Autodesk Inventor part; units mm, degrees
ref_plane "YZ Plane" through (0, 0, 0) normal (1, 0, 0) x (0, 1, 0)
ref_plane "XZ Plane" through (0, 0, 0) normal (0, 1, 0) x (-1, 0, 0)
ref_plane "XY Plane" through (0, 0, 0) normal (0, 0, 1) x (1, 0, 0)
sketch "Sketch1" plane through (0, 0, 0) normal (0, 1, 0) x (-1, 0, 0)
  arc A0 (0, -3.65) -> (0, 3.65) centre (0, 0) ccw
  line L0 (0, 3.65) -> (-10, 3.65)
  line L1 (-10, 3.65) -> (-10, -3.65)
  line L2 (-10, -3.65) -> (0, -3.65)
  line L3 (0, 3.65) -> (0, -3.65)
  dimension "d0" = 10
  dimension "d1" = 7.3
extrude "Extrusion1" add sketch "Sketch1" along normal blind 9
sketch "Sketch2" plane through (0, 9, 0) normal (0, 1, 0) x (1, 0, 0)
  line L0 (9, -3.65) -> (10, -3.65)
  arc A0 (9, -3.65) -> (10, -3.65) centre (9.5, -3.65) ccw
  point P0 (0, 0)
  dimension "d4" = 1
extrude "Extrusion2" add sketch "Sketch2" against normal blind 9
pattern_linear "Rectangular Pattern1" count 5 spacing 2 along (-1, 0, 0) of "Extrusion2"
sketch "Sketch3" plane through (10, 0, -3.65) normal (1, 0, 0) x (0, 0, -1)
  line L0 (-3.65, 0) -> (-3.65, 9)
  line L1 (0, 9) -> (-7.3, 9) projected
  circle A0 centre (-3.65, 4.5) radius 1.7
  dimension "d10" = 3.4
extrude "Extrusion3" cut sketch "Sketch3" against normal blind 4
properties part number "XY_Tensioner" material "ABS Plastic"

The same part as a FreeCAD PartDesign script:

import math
import FreeCAD as App
import Part
import Sketcher

doc = App.newDocument("Part")
body = doc.addObject("PartDesign::Body", "Body")

# Sketch on XZ plane
sketch1 = body.newObject("Sketcher::SketchObject", "Sketch")
sketch1.AttachmentSupport = (doc.getObject("XZ_Plane"), [""])
sketch1.MapMode = "FlatFace"
sketch1.addGeometry([
    Part.ArcOfCircle(Part.Circle(App.Vector(0, 0, 0), App.Vector(0, 0, 1), 3.6), math.radians(90), math.radians(270)),
    Part.LineSegment(App.Vector(0, 3.6, 0), App.Vector(10, 3.6, 0)),
    Part.LineSegment(App.Vector(10, 3.6, 0), App.Vector(10, -3.6, 0)),
    Part.LineSegment(App.Vector(10, -3.6, 0), App.Vector(0, -3.6, 0)),
], False)
sketch1.addConstraint([
    Sketcher.Constraint("Tangent", 0, 1, 1, 1),
    Sketcher.Constraint("Coincident", 1, 2, 2, 1),
    Sketcher.Constraint("Coincident", 2, 2, 3, 1),
    Sketcher.Constraint("Tangent", 3, 2, 0, 2),
    Sketcher.Constraint("Horizontal", 1),
    Sketcher.Constraint("Vertical", 2),
    Sketcher.Constraint("Horizontal", 3),
    Sketcher.Constraint("Coincident", 0, 3, -1, 1),
    Sketcher.Constraint("DistanceX", 1, 1, 1, 2, 10.0),
    Sketcher.Constraint("Radius", 0, 3.65),
])
pad1 = body.newObject("PartDesign::Pad", "Pad")
pad1.Profile = sketch1
pad1.Length = 9
pad1.Reversed = True

# Sketch on XZ plane
sketch2 = body.newObject("Sketcher::SketchObject", "Sketch001")
sketch2.AttachmentSupport = (doc.getObject("XZ_Plane"), [""])
sketch2.MapMode = "FlatFace"
sketch2.AttachmentOffset = App.Placement(App.Vector(0, 0, -9), App.Rotation())
sketch2.addGeometry([
    Part.LineSegment(App.Vector(10, 3.6, 0), App.Vector(9, 3.6, 0)),
    Part.ArcOfCircle(Part.Circle(App.Vector(9.5, 3.6, 0), App.Vector(0, 0, 1), 0.5), math.radians(0), math.radians(180)),
], False)
sketch2.addConstraint([
    Sketcher.Constraint("Coincident", 0, 1, 1, 1),
    Sketcher.Constraint("Coincident", 1, 2, 0, 2),
    Sketcher.Constraint("Horizontal", 0),
    Sketcher.Constraint("Horizontal", 1, 3, 0, 1),
    Sketcher.Constraint("Radius", 1, 0.5),
    Sketcher.Constraint("DistanceX", -1, 1, 0, 1, 10.0),
    Sketcher.Constraint("DistanceY", -1, 1, 1, 3, 3.65),
])
pad2 = body.newObject("PartDesign::Pad", "Pad001")
pad2.Profile = sketch2
pad2.Length = 9
doc.recompute()

linearpattern = body.newObject("PartDesign::LinearPattern", "LinearPattern")
linearpattern.Originals = [pad2]
linearpattern.Direction = (doc.getObject("X_Axis"), [""])
linearpattern.Mode = "offset"
linearpattern.Offset = 2
linearpattern.Occurrences = 5
linearpattern.Reversed = True
body.Tip = linearpattern

# Sketch on YZ plane
sketch3 = body.newObject("Sketcher::SketchObject", "Sketch002")
sketch3.AttachmentSupport = (doc.getObject("YZ_Plane"), [""])
sketch3.MapMode = "FlatFace"
sketch3.AttachmentOffset = App.Placement(App.Vector(0, 0, 10), App.Rotation())
sketch3.addGeometry(Part.Circle(App.Vector(4.5, 0, 0), App.Vector(0, 0, 1), 1.7), False)
sketch3.addConstraint([
    Sketcher.Constraint("PointOnObject", 0, 3, -1),
    Sketcher.Constraint("Diameter", 0, 3.4),
    Sketcher.Constraint("DistanceX", -1, 1, 0, 3, 4.5),
])
pocket1 = body.newObject("PartDesign::Pocket", "Pocket")
pocket1.Profile = sketch3
pocket1.Length = 4

doc.recompute()
